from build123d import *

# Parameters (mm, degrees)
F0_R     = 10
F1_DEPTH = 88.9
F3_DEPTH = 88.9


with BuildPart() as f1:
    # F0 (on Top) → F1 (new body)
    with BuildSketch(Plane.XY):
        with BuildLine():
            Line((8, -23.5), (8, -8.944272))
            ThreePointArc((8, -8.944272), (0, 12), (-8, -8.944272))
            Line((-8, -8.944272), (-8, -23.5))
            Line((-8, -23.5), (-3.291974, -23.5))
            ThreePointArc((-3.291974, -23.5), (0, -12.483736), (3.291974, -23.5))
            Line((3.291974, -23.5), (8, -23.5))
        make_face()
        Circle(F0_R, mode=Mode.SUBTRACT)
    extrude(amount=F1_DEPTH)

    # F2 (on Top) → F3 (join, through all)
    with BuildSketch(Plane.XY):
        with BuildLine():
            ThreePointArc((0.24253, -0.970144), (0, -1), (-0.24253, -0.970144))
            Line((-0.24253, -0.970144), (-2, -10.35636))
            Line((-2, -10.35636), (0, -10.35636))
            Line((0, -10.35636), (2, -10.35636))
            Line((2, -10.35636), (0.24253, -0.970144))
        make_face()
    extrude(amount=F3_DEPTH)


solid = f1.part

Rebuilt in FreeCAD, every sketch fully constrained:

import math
import FreeCAD as App
import Part
import Sketcher
from FreeCAD import Vector
Q = App.Units.Quantity

doc = App.newDocument("Part")
params = doc.addObject("Spreadsheet::Sheet", "Params")
for row, (alias, value) in enumerate([
    ("sketch1_diameter", "20 mm"),
    ("sketch1_radius", "12 mm"),
    ("sketch1_radius2", "6 mm"),
    ("pad1_length", "88.9 mm"),
    ("sketch2_width", "4 mm"),
    ("pad2_length", "88.9 mm"),
], start=1):
    params.set(f"A{row}", alias)
    params.set(f"B{row}", "=" + value)
    params.setAlias(f"B{row}", alias)

body = doc.addObject("PartDesign::Body", "Body")

sketch1 = doc.addObject("Sketcher::SketchObject", "Sketch")
body.addObject(sketch1)
sketch1.AttachmentSupport = (doc.XY_Plane, [""])
sketch1.MapMode = "FlatFace"
sketch1.addGeometry([
    Part.LineSegment(Vector(8, -23.5, 0), Vector(8, -8.944272, 0)),
    Part.ArcOfCircle(Part.Circle(Vector(0, 0, 0), Vector(0, 0, 1), 12), math.radians(-48.189685), math.radians(228.189685)),
    Part.LineSegment(Vector(-8, -8.944272, 0), Vector(-8, -23.5, 0)),
    Part.LineSegment(Vector(-8, -23.5, 0), Vector(-3.291974, -23.5, 0)),
    Part.ArcOfCircle(Part.Circle(Vector(0, -18.483736, 0), Vector(0, 0, 1), 6), math.radians(-56.724707), math.radians(236.724707)),
    Part.LineSegment(Vector(3.291974, -23.5, 0), Vector(8, -23.5, 0)),
    Part.Circle(Vector(0, 0, 0), Vector(0, 0, 1), 10),
], False)
sketch1.addConstraint([
    Sketcher.Constraint("Coincident", 0, 2, 1, 1),
    Sketcher.Constraint("Coincident", 1, 2, 2, 1),
    Sketcher.Constraint("Coincident", 2, 2, 3, 1),
    Sketcher.Constraint("Coincident", 3, 2, 4, 2),
    Sketcher.Constraint("Coincident", 4, 1, 5, 1),
    Sketcher.Constraint("Coincident", 5, 2, 0, 1),
    Sketcher.Constraint("Vertical", 0),
    Sketcher.Constraint("Vertical", 2),
    Sketcher.Constraint("Horizontal", 3),
    Sketcher.Constraint("Horizontal", 5),
    Sketcher.Constraint("Coincident", 1, 3, -1, 1),
    Sketcher.Constraint("Coincident", 6, 3, -1, 1),
    Sketcher.Constraint("Symmetric", 3, 2, 4, 1, -2),
    Sketcher.Constraint("Horizontal", 0, 2, 1, 2),
    Sketcher.Constraint("Diameter", 6, Q("20 mm")),
    Sketcher.Constraint("Radius", 1, Q("12 mm")),
    Sketcher.Constraint("Radius", 4, Q("6 mm")),
    Sketcher.Constraint("DistanceX", -1, 1, 0, 2, Q("8 mm")),
    Sketcher.Constraint("DistanceY", 2, 2, -1, 1, Q("23.5 mm")),
    Sketcher.Constraint("DistanceX", 3, 1, 3, 2, Q("4.708026 mm")),
])
sketch1.setExpression("Constraints[14]", "Params.sketch1_diameter")
sketch1.setExpression("Constraints[15]", "Params.sketch1_radius")
sketch1.setExpression("Constraints[16]", "Params.sketch1_radius2")
pad1 = doc.addObject("PartDesign::Pad", "Pad")
body.addObject(pad1)
pad1.Profile = sketch1
pad1.setExpression("Length", "Params.pad1_length")

sketch2 = doc.addObject("Sketcher::SketchObject", "Sketch001")
body.addObject(sketch2)
sketch2.AttachmentSupport = (doc.XY_Plane, [""])
sketch2.MapMode = "FlatFace"
sketch2.addGeometry([
    Part.ArcOfCircle(Part.Circle(Vector(0, 0.000003, 0), Vector(0, 0, 1), 1.000003), math.radians(-104.035868), math.radians(-75.964132)),
    Part.LineSegment(Vector(-0.24253, -0.970144, 0), Vector(-2, -10.35636, 0)),
    Part.LineSegment(Vector(-2, -10.35636, 0), Vector(2, -10.35636, 0)),
    Part.LineSegment(Vector(2, -10.35636, 0), Vector(0.24253, -0.970144, 0)),
], False)
sketch2.addConstraint([
    Sketcher.Constraint("Coincident", 0, 1, 1, 1),
    Sketcher.Constraint("Coincident", 1, 2, 2, 1),
    Sketcher.Constraint("Coincident", 2, 2, 3, 1),
    Sketcher.Constraint("Coincident", 3, 2, 0, 2),
    Sketcher.Constraint("Horizontal", 2),
    Sketcher.Constraint("Coincident", 0, 3, -1, 1),
    Sketcher.Constraint("Horizontal", 0, 1, 3, 2),
    Sketcher.Constraint("Equal", 1, 3),
    Sketcher.Constraint("DistanceX", 2, 1, 2, 2, Q("4 mm")),
    Sketcher.Constraint("Radius", 0, Q("1.000003 mm")),
    Sketcher.Constraint("DistanceX", 0, 1, -1, 1, Q("0.24253 mm")),
    Sketcher.Constraint("DistanceY", 1, 2, -1, 1, Q("10.35636 mm")),
])
sketch2.setExpression("Constraints[8]", "Params.sketch2_width")
pad2 = doc.addObject("PartDesign::Pad", "Pad001")
body.addObject(pad2)
pad2.Profile = sketch2
pad2.setExpression("Length", "Params.pad2_length")

doc.recompute()
